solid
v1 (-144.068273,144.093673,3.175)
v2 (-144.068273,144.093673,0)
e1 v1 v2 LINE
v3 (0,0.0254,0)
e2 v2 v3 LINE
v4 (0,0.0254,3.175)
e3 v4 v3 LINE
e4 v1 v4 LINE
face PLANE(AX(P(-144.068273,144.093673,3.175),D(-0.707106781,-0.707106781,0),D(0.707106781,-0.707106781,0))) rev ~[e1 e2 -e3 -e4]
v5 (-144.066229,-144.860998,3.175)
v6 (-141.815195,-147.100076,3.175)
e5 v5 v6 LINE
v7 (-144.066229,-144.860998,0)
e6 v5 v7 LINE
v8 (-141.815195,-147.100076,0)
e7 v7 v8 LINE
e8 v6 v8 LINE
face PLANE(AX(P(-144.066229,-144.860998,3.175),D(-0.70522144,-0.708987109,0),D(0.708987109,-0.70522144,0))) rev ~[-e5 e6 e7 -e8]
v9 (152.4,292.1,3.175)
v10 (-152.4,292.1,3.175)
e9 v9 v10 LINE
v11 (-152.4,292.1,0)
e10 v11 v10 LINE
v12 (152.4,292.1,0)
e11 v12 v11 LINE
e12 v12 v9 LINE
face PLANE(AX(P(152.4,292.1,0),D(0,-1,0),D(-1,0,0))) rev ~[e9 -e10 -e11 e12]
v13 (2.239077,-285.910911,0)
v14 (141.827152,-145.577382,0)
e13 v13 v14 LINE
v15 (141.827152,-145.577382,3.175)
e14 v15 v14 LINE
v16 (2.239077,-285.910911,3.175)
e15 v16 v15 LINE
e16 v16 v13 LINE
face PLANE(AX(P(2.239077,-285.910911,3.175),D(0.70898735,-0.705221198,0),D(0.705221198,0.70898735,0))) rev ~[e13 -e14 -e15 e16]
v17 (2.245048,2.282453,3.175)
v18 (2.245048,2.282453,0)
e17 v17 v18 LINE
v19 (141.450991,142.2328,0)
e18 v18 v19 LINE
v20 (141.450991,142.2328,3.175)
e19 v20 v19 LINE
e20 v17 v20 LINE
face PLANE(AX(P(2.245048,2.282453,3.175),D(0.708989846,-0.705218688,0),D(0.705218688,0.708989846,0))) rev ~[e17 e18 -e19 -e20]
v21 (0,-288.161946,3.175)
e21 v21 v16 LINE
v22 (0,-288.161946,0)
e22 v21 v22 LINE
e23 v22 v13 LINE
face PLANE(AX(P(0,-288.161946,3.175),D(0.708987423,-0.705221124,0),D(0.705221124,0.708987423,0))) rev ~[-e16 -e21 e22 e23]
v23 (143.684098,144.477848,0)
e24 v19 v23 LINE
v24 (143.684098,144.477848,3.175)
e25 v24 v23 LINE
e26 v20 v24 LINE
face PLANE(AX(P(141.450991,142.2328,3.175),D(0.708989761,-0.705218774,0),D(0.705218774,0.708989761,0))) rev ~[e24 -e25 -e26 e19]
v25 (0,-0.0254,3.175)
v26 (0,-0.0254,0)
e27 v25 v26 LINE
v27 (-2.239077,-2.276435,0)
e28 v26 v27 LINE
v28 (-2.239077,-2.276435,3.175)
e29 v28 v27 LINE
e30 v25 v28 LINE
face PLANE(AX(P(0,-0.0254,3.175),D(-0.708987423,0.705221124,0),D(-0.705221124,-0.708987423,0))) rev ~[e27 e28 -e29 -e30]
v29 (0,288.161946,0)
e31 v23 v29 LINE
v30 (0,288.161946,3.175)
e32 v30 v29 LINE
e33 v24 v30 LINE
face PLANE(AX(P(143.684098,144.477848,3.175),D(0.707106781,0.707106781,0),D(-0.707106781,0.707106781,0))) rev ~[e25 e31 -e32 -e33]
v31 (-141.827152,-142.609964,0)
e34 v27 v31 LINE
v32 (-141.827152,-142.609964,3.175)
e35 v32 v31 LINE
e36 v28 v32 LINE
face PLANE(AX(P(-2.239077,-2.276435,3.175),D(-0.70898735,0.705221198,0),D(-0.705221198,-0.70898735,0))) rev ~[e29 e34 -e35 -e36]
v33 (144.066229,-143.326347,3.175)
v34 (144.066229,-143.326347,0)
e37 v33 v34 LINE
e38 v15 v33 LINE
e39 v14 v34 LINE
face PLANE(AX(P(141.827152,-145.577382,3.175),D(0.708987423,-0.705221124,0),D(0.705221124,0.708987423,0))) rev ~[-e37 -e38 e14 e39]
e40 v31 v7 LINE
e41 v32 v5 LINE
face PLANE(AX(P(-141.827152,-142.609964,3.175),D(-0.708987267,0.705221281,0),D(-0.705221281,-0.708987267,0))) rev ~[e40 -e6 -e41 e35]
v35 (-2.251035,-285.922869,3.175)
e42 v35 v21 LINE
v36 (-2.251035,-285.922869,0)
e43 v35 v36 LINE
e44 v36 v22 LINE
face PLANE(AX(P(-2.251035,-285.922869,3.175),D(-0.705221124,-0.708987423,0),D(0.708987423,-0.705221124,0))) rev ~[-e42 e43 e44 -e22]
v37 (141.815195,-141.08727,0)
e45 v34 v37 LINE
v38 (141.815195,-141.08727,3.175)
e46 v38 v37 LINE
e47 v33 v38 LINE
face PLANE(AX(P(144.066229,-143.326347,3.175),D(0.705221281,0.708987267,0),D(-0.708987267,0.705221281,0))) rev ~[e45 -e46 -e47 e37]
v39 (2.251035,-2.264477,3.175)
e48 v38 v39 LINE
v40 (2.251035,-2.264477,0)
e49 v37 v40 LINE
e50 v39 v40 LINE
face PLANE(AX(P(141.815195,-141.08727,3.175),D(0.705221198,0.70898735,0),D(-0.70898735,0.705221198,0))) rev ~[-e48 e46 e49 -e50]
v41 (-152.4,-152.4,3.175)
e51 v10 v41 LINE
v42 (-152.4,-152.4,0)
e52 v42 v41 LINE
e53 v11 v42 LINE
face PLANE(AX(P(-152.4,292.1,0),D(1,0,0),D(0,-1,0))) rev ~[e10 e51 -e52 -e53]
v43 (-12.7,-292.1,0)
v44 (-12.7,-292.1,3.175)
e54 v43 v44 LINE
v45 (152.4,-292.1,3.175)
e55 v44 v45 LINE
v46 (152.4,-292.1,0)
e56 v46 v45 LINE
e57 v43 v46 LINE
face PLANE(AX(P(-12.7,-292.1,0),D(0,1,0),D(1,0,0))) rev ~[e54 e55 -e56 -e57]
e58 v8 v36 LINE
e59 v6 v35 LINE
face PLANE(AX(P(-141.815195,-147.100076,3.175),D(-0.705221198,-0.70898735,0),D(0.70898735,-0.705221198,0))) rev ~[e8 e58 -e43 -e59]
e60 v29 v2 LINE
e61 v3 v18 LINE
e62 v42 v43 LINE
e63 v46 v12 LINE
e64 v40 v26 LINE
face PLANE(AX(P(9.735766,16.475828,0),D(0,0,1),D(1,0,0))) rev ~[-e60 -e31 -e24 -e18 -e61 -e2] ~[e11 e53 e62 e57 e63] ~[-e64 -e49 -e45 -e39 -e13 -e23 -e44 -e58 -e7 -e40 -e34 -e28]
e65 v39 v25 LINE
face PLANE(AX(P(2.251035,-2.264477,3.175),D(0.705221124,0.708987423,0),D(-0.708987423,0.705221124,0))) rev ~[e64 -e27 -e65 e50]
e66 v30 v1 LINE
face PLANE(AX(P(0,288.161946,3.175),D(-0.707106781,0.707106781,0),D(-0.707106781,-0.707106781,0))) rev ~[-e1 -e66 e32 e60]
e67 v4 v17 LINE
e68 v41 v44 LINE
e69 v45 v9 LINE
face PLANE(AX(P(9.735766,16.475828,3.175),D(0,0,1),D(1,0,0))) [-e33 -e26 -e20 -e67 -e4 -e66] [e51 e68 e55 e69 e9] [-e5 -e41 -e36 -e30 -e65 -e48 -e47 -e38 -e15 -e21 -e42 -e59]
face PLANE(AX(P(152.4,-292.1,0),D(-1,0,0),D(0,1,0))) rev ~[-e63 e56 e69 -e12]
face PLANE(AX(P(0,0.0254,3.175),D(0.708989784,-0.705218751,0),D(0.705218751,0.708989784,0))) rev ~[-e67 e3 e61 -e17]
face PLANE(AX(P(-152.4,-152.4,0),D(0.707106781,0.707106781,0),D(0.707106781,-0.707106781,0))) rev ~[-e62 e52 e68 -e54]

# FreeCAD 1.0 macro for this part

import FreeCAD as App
import Part
import Sketcher
Q = App.Units.Quantity


def add_polygon(sketch, points):
    """Adds a closed chain of lines whose ends are joined by coincident constraints."""
    first, n = sketch.GeometryCount, len(points)
    for a, b in zip(points, points[1:] + points[:1]):
        sketch.addGeometry(Part.LineSegment(App.Vector(*a, 0), App.Vector(*b, 0)), False)
    for i in range(n):
        sketch.addConstraint(Sketcher.Constraint("Coincident", first + i, 2, first + (i + 1) % n, 1))

doc = App.newDocument("Part")
body = doc.addObject("PartDesign::Body", "Body")

sketch1 = body.newObject("Sketcher::SketchObject", "Sketch")
sketch1.AttachmentSupport = (doc.getObject("XY_Plane"), [""])
sketch1.MapMode = "FlatFace"
add_polygon(sketch1, [(152, 292), (-152, 292), (-152, -152), (-13, -292), (152, -292)])
sketch1.addConstraint([
    Sketcher.Constraint("Horizontal", 0),
    Sketcher.Constraint("Vertical", 1),
    Sketcher.Constraint("Horizontal", 3),
    Sketcher.Constraint("Vertical", 4),
    Sketcher.Constraint("Symmetric", 0, 2, 3, 2, -1, 1),
    Sketcher.Constraint("DistanceX", 0, 2, 0, 1, Q("12 in")),
    Sketcher.Constraint("DistanceY", 4, 1, 4, 2, Q("23 in")),
    Sketcher.Constraint("DistanceX", 3, 1, 3, 2, Q("6.5 in")),
    Sketcher.Constraint("DistanceY", 1, 2, 1, 1, Q("17.5 in")),
])
pad1 = body.newObject("PartDesign::Pad", "Pad")
pad1.Profile = sketch1
pad1.Length = Q("0.125 in")

sketch2 = body.newObject("Sketcher::SketchObject", "Sketch001")
sketch2.AttachmentSupport = (doc.getObject("XY_Plane"), [""])
sketch2.MapMode = "FlatFace"
sketch2.AttachmentOffset = App.Placement(App.Vector(0, 0, 0.125 * 25.4), App.Rotation())
add_polygon(sketch2, [(-144.068273, 144.093673), (0, 0.0254), (2.245048, 2.282453), (141.450991, 142.2328), (143.684098, 144.477848), (0, 288.161946)])
add_polygon(sketch2, [(-141.815195, -147.100076), (-2.251035, -285.922869), (0, -288.161946), (2.239077, -285.910911), (141.827152, -145.577382), (144.066229, -143.326347), (141.815195, -141.08727), (2.251035, -2.264477), (0, -0.0254), (-2.239077, -2.276435), (-141.827152, -142.609964), (-144.066229, -144.860998)])
sketch2.addConstraint([
    Sketcher.Constraint("Symmetric", 4, 2, 7, 2, -1, 1),
    Sketcher.Constraint("Symmetric", 0, 2, 13, 2, -1, 1),
    Sketcher.Constraint("PointOnObject", 0, 2, -2),
    Sketcher.Constraint("PointOnObject", 4, 2, -2),
    Sketcher.Constraint("Parallel", 1, 2),
    Sketcher.Constraint("Parallel", 2, 3),
    Sketcher.Constraint("Parallel", 0, 4),
    Sketcher.Constraint("Perpendicular", 4, 5),
    Sketcher.Constraint("Parallel", 6, 7),
    Sketcher.Constraint("Perpendicular", 7, 8),
    Sketcher.Constraint("Parallel", 8, 9),
    Sketcher.Constraint("Parallel", 9, 10),
    Sketcher.Constraint("Perpendicular", 10, 11),
    Sketcher.Constraint("Parallel", 11, 12),
    Sketcher.Constraint("Parallel", 12, 13),
    Sketcher.Constraint("Perpendicular", 13, 14),
    Sketcher.Constraint("Parallel", 14, 15),
    Sketcher.Constraint("Parallel", 15, 16),
    Sketcher.Constraint("Perpendicular", 16, 17),
    Sketcher.Constraint("Equal", 0, 5),
    Sketcher.Constraint("Equal", 7, 8),
    Sketcher.Constraint("Equal", 8, 10),
    Sketcher.Constraint("Equal", 10, 11),
    Sketcher.Constraint("Equal", 6, 12),
    Sketcher.Constraint("Equal", 11, 13),
    Sketcher.Constraint("Equal", 13, 14),
    Sketcher.Constraint("Equal", 9, 15),
    Sketcher.Constraint("Distance", 4, Q("8 in")),
    Sketcher.Constraint("Distance", 6, Q("7.75 in")),
    Sketcher.Constraint("Distance", 7, Q("0.125 in")),
    Sketcher.Constraint("DistanceY", -1, 1, 0, 2, Q("0.001 in")),
    Sketcher.Constraint("DistanceY", -1, 1, 2, 2, Q("142.2328 mm")),
    Sketcher.Constraint("DistanceY", 16, 2, -1, 1, Q("144.860998 mm")),
    Sketcher.Constraint("DistanceY", 7, 2, 1, 2, Q("290.444399 mm")),
])
pocket1 = body.newObject("PartDesign::Pocket", "Pocket")
pocket1.Profile = sketch2
pocket1.Length = Q("1 in")

doc.recompute()
